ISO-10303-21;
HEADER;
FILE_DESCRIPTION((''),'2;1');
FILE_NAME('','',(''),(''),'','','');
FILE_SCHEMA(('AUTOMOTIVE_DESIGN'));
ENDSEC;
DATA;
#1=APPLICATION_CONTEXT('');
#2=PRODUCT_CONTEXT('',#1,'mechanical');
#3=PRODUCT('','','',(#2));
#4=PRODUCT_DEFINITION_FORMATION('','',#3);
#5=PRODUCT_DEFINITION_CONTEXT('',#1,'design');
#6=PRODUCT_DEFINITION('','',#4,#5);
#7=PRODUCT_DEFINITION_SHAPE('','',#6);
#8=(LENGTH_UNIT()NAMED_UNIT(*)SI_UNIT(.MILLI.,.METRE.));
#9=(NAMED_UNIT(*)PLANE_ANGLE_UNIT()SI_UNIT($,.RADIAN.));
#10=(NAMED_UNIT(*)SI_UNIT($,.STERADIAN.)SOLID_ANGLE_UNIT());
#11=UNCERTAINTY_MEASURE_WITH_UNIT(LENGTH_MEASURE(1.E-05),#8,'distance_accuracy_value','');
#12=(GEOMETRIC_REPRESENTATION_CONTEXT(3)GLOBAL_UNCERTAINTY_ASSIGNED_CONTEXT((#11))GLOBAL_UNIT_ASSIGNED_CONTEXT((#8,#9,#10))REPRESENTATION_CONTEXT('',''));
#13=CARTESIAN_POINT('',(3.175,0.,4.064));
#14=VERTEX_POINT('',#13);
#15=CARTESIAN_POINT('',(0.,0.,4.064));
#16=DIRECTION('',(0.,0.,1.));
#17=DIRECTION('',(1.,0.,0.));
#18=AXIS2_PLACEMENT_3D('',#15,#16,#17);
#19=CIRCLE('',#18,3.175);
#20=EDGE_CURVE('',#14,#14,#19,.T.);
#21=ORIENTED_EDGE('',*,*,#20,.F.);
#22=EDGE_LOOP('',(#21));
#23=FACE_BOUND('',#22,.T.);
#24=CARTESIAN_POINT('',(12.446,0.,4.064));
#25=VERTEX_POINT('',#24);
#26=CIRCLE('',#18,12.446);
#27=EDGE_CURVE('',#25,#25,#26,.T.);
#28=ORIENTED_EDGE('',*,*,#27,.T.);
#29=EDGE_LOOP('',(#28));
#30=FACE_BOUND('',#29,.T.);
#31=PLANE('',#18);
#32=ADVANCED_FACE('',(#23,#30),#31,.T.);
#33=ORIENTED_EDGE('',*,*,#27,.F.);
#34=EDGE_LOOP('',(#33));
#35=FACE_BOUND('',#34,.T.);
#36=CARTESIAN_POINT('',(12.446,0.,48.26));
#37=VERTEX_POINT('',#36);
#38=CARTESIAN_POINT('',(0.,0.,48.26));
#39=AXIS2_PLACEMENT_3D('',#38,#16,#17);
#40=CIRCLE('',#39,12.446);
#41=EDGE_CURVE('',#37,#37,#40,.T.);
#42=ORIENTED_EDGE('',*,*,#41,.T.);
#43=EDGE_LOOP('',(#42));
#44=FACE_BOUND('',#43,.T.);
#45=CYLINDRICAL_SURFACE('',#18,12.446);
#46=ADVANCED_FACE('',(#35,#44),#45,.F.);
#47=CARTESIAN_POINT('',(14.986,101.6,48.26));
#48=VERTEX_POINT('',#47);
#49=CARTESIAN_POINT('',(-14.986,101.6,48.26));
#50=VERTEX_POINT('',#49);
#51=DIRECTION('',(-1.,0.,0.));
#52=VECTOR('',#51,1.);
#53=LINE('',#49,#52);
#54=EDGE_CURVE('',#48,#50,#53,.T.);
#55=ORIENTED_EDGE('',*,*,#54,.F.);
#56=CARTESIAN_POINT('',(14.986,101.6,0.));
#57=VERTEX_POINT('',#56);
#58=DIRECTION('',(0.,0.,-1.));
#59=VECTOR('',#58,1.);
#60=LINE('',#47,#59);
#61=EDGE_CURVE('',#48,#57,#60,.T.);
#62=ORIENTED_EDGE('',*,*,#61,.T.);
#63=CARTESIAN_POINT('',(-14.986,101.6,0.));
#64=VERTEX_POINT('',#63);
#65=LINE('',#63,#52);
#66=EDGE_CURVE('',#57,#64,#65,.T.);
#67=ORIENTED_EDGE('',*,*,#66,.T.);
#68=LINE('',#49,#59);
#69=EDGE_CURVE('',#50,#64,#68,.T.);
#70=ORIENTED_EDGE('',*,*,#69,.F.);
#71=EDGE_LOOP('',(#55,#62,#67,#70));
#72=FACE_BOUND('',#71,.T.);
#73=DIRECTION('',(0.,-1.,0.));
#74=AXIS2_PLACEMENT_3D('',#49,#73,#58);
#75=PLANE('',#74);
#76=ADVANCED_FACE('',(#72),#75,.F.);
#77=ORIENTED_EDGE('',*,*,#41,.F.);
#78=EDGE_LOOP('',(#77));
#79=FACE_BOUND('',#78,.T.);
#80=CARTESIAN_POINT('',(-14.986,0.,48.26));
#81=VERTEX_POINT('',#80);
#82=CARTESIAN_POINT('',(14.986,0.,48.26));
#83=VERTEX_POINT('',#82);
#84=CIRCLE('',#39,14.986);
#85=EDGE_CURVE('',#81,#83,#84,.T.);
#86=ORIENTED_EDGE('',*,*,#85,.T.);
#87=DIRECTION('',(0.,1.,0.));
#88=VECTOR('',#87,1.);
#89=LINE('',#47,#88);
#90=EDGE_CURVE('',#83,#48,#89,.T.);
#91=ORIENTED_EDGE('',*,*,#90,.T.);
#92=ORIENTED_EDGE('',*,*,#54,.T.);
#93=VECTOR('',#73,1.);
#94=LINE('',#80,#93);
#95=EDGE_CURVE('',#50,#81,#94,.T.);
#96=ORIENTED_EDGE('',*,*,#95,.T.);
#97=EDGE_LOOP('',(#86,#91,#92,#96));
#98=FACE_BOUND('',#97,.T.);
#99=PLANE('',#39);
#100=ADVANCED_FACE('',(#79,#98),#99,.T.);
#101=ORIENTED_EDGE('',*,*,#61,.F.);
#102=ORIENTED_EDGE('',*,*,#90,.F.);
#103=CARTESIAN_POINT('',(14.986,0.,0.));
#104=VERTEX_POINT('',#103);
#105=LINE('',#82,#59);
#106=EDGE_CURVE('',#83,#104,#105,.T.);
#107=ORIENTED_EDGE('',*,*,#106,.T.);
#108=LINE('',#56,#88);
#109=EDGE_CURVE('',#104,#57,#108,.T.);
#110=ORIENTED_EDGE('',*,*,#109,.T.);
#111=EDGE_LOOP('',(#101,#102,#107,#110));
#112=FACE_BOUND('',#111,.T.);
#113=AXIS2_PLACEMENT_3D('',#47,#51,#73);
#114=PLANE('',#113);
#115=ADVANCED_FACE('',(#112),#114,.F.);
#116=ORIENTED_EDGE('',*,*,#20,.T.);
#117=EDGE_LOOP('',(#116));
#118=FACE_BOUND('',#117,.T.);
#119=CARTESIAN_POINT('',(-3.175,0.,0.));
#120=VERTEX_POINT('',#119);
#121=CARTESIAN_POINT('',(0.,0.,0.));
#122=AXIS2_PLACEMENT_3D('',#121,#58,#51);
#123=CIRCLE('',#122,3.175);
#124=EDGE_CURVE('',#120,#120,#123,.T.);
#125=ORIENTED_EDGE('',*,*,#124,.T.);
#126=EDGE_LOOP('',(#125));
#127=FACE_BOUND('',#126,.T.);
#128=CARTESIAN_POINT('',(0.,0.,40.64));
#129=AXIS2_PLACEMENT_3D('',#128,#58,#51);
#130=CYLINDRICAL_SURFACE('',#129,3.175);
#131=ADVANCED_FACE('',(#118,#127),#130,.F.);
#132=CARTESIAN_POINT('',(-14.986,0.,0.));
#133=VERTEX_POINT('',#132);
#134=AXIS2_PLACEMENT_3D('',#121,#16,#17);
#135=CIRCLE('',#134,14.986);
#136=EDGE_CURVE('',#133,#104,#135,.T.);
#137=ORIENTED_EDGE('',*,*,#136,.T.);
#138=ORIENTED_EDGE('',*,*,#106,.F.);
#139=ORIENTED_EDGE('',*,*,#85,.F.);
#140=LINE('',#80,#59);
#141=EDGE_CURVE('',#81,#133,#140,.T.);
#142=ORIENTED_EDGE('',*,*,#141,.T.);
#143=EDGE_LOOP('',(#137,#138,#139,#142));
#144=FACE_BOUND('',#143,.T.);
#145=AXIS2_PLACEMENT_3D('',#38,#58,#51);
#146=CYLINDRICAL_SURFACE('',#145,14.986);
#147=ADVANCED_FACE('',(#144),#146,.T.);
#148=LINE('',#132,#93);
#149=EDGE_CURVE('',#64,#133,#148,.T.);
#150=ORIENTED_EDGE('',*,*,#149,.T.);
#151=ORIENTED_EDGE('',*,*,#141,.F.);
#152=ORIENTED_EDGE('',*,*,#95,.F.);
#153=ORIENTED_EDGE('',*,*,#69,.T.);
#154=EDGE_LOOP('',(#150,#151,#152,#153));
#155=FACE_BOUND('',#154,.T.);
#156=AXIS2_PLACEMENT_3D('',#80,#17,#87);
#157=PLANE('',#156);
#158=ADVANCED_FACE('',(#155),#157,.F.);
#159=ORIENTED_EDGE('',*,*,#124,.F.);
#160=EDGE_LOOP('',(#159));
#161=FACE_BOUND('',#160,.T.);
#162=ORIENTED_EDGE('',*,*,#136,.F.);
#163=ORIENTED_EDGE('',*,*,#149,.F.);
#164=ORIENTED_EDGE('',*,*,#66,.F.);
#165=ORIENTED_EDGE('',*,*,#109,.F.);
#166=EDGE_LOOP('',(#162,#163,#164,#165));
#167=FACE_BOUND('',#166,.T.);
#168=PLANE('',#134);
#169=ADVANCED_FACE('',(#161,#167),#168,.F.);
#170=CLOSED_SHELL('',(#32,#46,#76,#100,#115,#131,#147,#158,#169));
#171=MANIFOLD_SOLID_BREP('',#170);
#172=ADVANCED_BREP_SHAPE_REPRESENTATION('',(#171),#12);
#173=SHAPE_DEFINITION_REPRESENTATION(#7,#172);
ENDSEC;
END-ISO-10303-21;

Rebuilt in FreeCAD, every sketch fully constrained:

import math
import FreeCAD as App
import Part
import Sketcher

V = App.Vector
Q = App.Units.Quantity

doc = App.newDocument("Part")
params = doc.addObject("Spreadsheet::Sheet", "Params")
for row, (alias, value) in enumerate([
    ("sketch1_height", "4 in"),
    ("sketch1_radius", "0.59 in"),
    ("pad1_length", "1.9 in"),
    ("sketch2_diameter", "0.98 in"),
    ("pocket1_length", "1.74 in"),
    ("sketch3_diameter", "0.25 in"),
    ("pocket2_length", "1.6 in"),
], start=1):
    params.set(f"A{row}", alias)
    params.set(f"B{row}", "=" + value)
    params.setAlias(f"B{row}", alias)

body = doc.addObject("PartDesign::Body", "Body")

# Sketch on XY plane
sketch1 = body.newObject("Sketcher::SketchObject", "Sketch")
sketch1.AttachmentSupport = (doc.getObject("XY_Plane"), [""])
sketch1.MapMode = "FlatFace"
sketch1.addGeometry(Part.LineSegment(V(-15, 102, 0), V(-15, 0, 0)), False)
sketch1.addGeometry(Part.ArcOfCircle(Part.Circle(V(0, 0, 0), V(0, 0, 1), 15), math.radians(180), math.radians(360)), False)
sketch1.addGeometry(Part.LineSegment(V(15, 0, 0), V(15, 102, 0)), False)
sketch1.addGeometry(Part.LineSegment(V(15, 102, 0), V(-15, 102, 0)), False)
sketch1.addConstraint(Sketcher.Constraint("Tangent", 0, 2, 1, 1))
sketch1.addConstraint(Sketcher.Constraint("Tangent", 1, 2, 2, 1))
sketch1.addConstraint(Sketcher.Constraint("Coincident", 2, 2, 3, 1))
sketch1.addConstraint(Sketcher.Constraint("Coincident", 3, 2, 0, 1))
sketch1.addConstraint(Sketcher.Constraint("Vertical", 0))
sketch1.addConstraint(Sketcher.Constraint("Vertical", 2))
sketch1.addConstraint(Sketcher.Constraint("Horizontal", 3))
sketch1.addConstraint(Sketcher.Constraint("Coincident", 1, 3, -1, 1))
sketch1.addConstraint(Sketcher.Constraint("DistanceY", 0, 2, 0, 1, Q("4 in")))
sketch1.addConstraint(Sketcher.Constraint("Radius", 1, Q("0.59 in")))
sketch1.setExpression("Constraints[8]", "Params.sketch1_height")
sketch1.setExpression("Constraints[9]", "Params.sketch1_radius")
pad1 = body.newObject("PartDesign::Pad", "Pad")
pad1.Profile = sketch1
pad1.setExpression("Length", "Params.pad1_length")

# Sketch on XY plane
sketch2 = body.newObject("Sketcher::SketchObject", "Sketch001")
sketch2.AttachmentSupport = (doc.getObject("XY_Plane"), [""])
sketch2.MapMode = "FlatFace"
sketch2.AttachmentOffset = App.Placement(V(0, 0, 1.9 * 25.4), App.Rotation())
sketch2.addGeometry(Part.Circle(V(0, 0, 0), V(0, 0, 1), 12), False)
sketch2.addConstraint(Sketcher.Constraint("Coincident", 0, 3, -1, 1))
sketch2.addConstraint(Sketcher.Constraint("Diameter", 0, Q("0.98 in")))
sketch2.setExpression("Constraints[1]", "Params.sketch2_diameter")
pocket1 = body.newObject("PartDesign::Pocket", "Pocket")
pocket1.Profile = sketch2
pocket1.setExpression("Length", "Params.pocket1_length")

# Sketch on XY plane
sketch3 = body.newObject("Sketcher::SketchObject", "Sketch002")
sketch3.AttachmentSupport = (doc.getObject("XY_Plane"), [""])
sketch3.MapMode = "FlatFace"
sketch3.addGeometry(Part.Circle(V(0, 0, 0), V(0, 0, 1), 3.2), False)
sketch3.addConstraint(Sketcher.Constraint("Coincident", 0, 3, -1, 1))
sketch3.addConstraint(Sketcher.Constraint("Diameter", 0, Q("0.25 in")))
sketch3.setExpression("Constraints[1]", "Params.sketch3_diameter")
pocket2 = body.newObject("PartDesign::Pocket", "Pocket001")
pocket2.Profile = sketch3
pocket2.setExpression("Length", "Params.pocket2_length")
pocket2.Reversed = True

doc.recompute()
